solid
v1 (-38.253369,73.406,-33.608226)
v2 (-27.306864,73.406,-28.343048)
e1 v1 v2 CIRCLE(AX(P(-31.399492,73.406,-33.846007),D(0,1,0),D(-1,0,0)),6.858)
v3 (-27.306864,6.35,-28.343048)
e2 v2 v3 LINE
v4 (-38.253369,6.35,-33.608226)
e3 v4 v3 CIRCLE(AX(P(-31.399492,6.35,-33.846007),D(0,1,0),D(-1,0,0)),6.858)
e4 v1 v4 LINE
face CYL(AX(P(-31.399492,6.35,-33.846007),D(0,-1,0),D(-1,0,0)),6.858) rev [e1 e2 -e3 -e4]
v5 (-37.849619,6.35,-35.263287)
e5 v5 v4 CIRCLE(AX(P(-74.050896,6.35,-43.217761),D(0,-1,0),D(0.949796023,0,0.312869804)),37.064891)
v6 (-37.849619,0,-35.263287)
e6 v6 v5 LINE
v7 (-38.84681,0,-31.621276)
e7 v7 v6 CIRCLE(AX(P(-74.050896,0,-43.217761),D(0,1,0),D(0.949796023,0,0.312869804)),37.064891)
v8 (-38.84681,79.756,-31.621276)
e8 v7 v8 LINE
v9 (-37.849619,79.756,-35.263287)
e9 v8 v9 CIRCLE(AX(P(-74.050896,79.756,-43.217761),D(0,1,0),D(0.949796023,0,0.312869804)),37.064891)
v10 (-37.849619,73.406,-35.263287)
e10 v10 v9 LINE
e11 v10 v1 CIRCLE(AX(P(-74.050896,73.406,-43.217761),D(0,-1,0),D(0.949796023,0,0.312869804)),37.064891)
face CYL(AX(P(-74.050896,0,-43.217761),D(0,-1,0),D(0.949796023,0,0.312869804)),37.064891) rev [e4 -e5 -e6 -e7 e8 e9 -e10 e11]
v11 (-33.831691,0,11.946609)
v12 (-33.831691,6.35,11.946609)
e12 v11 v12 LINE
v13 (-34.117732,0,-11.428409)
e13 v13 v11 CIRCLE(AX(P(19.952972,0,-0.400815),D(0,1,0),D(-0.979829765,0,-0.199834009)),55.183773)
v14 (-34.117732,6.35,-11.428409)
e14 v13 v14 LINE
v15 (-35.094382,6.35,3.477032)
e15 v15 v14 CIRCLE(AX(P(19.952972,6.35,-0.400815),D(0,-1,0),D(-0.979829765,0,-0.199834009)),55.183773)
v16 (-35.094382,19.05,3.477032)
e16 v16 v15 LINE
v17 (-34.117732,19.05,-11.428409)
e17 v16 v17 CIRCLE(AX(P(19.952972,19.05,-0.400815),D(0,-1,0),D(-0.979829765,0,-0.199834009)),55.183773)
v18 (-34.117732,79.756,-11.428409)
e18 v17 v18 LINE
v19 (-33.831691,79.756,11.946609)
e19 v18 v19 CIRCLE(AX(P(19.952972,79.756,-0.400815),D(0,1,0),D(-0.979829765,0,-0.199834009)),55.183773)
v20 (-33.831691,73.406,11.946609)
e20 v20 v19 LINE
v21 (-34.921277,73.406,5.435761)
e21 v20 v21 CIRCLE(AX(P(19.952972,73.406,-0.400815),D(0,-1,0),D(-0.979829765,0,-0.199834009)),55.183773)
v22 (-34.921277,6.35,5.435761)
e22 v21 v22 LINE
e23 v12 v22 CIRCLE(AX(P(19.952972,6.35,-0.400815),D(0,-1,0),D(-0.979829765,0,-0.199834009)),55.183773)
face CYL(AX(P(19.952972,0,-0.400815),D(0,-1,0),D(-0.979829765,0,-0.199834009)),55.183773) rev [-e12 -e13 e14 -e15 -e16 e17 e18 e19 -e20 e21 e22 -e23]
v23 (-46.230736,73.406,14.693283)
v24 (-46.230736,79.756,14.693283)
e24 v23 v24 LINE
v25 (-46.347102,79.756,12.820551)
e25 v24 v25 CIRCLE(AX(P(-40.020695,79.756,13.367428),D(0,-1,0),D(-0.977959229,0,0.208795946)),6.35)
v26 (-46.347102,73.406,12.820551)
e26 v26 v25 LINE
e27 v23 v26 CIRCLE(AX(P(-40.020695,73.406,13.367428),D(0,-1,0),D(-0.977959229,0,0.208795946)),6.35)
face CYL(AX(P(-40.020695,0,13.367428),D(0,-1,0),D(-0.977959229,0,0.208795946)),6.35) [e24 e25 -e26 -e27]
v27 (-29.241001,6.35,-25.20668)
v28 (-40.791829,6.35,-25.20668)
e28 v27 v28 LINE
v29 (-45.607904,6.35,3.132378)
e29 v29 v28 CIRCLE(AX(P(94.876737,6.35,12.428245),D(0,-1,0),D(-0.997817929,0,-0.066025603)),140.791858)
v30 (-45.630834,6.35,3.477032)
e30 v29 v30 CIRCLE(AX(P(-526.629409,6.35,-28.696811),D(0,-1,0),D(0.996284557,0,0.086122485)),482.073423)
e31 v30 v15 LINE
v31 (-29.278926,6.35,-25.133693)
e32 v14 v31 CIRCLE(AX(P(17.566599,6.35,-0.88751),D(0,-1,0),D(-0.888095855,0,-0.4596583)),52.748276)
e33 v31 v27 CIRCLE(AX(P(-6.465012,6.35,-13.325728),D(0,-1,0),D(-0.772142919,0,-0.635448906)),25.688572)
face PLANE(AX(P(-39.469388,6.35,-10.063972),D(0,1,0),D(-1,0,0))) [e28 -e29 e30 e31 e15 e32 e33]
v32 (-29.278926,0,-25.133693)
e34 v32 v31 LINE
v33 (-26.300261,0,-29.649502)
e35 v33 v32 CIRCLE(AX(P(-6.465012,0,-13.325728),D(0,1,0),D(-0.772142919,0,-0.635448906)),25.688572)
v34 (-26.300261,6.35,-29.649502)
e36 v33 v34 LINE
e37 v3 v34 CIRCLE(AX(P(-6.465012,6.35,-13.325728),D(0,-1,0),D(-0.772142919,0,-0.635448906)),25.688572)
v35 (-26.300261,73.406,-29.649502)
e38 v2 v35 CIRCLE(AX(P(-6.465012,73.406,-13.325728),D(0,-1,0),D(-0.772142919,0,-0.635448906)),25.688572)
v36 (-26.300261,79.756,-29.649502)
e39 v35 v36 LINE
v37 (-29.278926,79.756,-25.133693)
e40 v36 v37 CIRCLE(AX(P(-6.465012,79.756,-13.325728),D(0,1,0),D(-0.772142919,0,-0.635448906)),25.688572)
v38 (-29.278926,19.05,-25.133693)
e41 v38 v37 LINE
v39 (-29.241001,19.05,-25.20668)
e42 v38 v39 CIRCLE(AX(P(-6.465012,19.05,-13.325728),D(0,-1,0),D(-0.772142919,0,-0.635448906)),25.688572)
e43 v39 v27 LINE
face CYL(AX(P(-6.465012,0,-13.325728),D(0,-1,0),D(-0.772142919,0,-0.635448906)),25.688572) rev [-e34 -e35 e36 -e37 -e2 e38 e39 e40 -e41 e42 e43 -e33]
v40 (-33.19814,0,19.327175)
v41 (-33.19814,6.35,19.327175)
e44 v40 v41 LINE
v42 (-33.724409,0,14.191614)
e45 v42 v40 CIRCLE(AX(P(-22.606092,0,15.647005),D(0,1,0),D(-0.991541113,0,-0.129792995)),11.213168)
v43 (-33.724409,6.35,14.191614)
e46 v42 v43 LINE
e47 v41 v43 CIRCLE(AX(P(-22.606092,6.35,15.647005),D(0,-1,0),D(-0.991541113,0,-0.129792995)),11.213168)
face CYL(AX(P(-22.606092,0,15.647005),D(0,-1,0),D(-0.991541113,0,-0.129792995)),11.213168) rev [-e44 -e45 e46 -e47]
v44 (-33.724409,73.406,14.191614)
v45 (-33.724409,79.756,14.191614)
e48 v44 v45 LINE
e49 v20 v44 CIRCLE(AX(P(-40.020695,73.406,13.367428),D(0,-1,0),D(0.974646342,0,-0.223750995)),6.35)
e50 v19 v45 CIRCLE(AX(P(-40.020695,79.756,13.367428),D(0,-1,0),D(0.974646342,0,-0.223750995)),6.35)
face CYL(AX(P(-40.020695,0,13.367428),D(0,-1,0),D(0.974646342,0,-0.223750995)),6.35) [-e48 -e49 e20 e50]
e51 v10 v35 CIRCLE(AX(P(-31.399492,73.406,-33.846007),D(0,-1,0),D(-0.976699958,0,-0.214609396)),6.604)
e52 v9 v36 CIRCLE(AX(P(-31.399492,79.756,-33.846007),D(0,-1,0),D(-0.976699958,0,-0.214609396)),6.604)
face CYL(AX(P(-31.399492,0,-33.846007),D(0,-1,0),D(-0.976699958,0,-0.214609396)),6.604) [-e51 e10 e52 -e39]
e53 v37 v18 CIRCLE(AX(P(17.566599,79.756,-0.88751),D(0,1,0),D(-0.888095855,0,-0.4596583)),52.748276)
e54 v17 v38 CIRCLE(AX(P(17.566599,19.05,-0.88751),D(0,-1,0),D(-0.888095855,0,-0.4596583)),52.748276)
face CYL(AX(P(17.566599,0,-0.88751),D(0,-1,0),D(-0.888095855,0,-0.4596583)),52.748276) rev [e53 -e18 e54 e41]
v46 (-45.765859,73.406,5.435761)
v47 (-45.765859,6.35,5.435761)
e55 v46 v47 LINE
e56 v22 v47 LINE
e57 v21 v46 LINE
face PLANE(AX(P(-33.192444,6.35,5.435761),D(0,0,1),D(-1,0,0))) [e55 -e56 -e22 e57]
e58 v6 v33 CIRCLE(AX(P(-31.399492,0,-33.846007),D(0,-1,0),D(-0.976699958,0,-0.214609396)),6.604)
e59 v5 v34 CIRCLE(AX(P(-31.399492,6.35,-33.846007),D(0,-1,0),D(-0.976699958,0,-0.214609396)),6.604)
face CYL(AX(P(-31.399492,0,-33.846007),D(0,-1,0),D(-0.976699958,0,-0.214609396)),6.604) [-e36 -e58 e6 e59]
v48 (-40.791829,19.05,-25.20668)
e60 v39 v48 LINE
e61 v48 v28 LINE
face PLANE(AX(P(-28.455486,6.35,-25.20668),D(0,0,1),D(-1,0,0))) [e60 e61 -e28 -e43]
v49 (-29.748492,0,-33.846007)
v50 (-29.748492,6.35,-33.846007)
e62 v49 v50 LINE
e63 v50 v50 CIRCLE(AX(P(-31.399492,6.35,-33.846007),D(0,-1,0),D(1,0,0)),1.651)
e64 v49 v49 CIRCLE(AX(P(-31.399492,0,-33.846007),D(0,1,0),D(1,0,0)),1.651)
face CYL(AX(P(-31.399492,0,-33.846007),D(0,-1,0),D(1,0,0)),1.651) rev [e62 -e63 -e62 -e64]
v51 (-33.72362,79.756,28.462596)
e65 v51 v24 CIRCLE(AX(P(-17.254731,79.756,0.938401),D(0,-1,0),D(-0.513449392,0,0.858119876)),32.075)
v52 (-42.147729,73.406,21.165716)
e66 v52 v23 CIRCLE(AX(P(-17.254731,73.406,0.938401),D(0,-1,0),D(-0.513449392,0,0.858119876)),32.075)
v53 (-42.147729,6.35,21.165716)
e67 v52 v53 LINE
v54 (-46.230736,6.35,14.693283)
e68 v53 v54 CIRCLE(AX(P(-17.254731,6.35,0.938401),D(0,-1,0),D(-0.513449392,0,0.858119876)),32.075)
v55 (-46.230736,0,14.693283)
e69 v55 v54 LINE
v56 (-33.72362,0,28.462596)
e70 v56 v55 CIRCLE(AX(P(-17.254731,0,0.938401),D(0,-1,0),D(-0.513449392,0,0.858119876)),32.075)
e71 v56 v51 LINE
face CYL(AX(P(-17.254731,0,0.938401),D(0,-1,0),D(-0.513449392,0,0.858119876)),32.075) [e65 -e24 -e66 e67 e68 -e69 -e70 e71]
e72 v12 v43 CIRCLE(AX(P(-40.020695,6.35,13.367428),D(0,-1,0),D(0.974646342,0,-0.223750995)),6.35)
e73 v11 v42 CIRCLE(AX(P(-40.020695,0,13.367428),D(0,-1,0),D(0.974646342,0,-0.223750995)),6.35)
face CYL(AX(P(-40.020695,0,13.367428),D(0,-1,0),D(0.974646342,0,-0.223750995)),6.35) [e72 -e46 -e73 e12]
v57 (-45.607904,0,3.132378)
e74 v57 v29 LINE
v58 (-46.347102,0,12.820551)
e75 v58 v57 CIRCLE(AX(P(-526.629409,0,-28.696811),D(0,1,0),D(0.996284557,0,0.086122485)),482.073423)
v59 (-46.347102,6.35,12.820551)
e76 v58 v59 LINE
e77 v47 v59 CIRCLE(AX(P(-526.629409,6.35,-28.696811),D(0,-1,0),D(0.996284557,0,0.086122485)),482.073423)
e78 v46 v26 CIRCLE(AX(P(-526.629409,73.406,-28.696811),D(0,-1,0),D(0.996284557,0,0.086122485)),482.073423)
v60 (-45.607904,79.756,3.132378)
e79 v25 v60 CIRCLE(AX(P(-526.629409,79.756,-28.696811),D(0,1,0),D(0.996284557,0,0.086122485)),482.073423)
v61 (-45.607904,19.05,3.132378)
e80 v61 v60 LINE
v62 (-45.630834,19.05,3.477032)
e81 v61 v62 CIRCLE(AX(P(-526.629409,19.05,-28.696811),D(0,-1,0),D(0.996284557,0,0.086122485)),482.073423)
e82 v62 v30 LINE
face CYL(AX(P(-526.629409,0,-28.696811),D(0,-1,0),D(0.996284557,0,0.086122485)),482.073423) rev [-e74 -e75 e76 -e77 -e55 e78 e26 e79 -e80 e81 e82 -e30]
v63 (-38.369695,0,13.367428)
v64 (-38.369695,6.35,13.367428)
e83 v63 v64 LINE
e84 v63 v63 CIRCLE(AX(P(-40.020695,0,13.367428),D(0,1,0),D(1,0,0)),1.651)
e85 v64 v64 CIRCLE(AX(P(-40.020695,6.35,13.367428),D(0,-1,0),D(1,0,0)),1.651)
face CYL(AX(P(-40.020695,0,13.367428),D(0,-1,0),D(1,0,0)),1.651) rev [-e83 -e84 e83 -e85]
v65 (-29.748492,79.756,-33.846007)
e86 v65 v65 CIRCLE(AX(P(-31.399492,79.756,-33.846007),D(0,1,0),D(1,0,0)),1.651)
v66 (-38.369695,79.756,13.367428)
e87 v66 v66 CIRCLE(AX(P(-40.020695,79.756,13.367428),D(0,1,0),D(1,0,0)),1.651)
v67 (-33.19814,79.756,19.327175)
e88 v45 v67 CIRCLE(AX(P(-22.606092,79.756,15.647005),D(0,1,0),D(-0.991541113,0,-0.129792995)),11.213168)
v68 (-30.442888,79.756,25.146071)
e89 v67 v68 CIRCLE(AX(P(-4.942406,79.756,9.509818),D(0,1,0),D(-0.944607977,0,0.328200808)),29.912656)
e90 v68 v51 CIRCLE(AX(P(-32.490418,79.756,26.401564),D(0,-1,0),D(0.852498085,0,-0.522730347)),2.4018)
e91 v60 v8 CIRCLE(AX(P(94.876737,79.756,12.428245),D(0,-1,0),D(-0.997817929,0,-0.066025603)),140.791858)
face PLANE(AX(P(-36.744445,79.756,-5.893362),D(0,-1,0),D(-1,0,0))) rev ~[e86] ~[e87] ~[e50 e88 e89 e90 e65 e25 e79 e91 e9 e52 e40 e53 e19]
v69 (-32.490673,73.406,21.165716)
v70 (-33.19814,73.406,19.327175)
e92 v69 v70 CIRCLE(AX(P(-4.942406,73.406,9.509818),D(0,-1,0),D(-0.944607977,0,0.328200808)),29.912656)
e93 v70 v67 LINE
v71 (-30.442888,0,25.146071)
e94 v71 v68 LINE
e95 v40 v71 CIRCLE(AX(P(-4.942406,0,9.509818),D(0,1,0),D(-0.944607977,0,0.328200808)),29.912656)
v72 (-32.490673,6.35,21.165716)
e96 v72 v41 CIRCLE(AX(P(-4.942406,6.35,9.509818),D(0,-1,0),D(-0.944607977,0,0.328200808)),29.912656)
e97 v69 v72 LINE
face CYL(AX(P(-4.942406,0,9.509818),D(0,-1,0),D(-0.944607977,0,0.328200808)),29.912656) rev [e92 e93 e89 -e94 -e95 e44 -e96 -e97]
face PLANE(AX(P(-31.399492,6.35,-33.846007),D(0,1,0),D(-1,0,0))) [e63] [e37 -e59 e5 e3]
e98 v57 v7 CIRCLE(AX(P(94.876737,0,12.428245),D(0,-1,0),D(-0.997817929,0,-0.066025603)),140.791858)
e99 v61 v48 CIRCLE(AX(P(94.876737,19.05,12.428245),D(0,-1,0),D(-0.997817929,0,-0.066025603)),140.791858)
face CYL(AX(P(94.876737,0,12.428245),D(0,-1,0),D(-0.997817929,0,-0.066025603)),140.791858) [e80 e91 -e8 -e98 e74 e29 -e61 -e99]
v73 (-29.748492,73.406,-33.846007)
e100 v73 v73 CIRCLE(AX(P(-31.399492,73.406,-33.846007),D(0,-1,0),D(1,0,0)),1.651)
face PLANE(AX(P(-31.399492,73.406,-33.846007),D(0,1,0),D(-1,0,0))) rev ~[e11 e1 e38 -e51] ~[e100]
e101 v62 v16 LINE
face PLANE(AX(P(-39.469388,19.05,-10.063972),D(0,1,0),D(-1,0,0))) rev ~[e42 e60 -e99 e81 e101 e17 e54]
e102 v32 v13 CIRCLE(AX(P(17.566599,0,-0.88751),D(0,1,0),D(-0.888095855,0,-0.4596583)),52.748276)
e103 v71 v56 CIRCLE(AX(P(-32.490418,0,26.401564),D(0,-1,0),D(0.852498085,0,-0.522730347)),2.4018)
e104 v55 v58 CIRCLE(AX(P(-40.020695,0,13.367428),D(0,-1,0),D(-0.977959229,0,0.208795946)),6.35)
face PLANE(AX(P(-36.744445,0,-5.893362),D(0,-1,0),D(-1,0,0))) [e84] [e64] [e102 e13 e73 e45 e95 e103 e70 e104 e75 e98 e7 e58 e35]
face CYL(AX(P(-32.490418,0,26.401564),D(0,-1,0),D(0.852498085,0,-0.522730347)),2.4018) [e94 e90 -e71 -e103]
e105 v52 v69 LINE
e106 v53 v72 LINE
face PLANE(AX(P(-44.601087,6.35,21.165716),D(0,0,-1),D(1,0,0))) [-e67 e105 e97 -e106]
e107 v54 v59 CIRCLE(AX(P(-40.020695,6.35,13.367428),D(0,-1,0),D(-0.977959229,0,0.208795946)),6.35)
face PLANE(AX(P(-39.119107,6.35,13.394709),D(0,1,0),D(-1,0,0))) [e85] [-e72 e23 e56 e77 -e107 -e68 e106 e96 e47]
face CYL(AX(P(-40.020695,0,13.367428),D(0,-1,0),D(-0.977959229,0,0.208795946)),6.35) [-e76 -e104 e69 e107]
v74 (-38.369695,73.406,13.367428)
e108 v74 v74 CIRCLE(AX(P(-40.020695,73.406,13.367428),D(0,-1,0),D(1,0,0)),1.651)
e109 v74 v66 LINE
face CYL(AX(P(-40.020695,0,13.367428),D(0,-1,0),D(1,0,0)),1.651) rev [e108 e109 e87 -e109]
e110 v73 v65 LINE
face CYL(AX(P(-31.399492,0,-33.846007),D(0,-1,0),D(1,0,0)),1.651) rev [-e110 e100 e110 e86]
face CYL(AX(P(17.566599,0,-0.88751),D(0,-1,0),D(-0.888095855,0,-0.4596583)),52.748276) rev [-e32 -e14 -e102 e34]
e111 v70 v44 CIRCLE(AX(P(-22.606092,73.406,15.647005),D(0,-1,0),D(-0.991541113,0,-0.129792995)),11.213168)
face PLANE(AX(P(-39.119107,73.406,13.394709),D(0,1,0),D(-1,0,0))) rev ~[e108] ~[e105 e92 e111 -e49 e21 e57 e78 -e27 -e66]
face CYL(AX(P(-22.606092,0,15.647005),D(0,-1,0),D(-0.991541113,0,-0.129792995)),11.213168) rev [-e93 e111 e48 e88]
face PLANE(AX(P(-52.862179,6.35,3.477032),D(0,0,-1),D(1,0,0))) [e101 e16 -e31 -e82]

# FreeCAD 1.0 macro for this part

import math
import FreeCAD as App
import Part
import Sketcher
Q = App.Units.Quantity


def add_polygon(sketch, points):
    """Adds a closed chain of lines whose ends are joined by coincident constraints."""
    first, n = sketch.GeometryCount, len(points)
    for a, b in zip(points, points[1:] + points[:1]):
        sketch.addGeometry(Part.LineSegment(App.Vector(*a, 0), App.Vector(*b, 0)), False)
    for i in range(n):
        sketch.addConstraint(Sketcher.Constraint("Coincident", first + i, 2, first + (i + 1) % n, 1))

doc = App.newDocument("Part")
body = doc.addObject("PartDesign::Body", "Body")

# Sketch on XZ plane
sketch1 = body.newObject("Sketcher::SketchObject", "Sketch")
sketch1.AttachmentSupport = (doc.getObject("XZ_Plane"), [""])
sketch1.MapMode = "FlatFace"
sketch1.addGeometry([
    Part.ArcOfCircle(Part.Circle(App.Vector(-526.6, -28.7, 0), App.Vector(0, 0, 1), 482.1), math.radians(3.79), math.radians(4.94)),  # 0
    Part.ArcOfCircle(Part.Circle(App.Vector(-40, 13.4, 0), App.Vector(0, 0, 1), 6.3), math.radians(167.95), math.radians(184.94)),  # 1
    Part.ArcOfCircle(Part.Circle(App.Vector(-17.3, 0.9, 0), App.Vector(0, 0, 1), 32.1), math.radians(121), math.radians(155)),  # 2
    Part.ArcOfCircle(Part.Circle(App.Vector(-32.5, 26.4, 0), App.Vector(0, 0, 1), 2.4), math.radians(-32), math.radians(121)),  # 3
    Part.ArcOfCircle(Part.Circle(App.Vector(-4.9, 9.5, 0), App.Vector(0, 0, 1), 29.9), math.radians(148.48), math.radians(160.84)),  # 4
    Part.ArcOfCircle(Part.Circle(App.Vector(-22.6, 15.6, 0), App.Vector(0, 0, 1), 11.2), math.radians(161), math.radians(187)),  # 5
    Part.ArcOfCircle(Part.Circle(App.Vector(-40, 13.4, 0), App.Vector(0, 0, 1), 6.3), math.radians(-13), math.radians(7)),  # 6
    Part.ArcOfCircle(Part.Circle(App.Vector(20, -0.4, 0), App.Vector(0, 0, 1), 55.2), math.radians(167), math.radians(192)),  # 7
    Part.ArcOfCircle(Part.Circle(App.Vector(17.6, -0.9, 0), App.Vector(0, 0, 1), 52.7), math.radians(-168.47), math.radians(-152.63)),  # 8
    Part.ArcOfCircle(Part.Circle(App.Vector(-6.5, -13.3, 0), App.Vector(0, 0, 1), 25.7), math.radians(-152.63), math.radians(-140.55)),  # 9
    Part.ArcOfCircle(Part.Circle(App.Vector(-31.4, -33.8, 0), App.Vector(0, 0, 1), 6.6), math.radians(-168), math.radians(39)),  # 10
    Part.ArcOfCircle(Part.Circle(App.Vector(-74.1, -43.2, 0), App.Vector(0, 0, 1), 37.1), math.radians(12.39), math.radians(18.23)),  # 11
    Part.ArcOfCircle(Part.Circle(App.Vector(94.9, 12.4, 0), App.Vector(0, 0, 1), 140.8), math.radians(-176.21), math.radians(-161.77)),  # 12
    Part.Circle(App.Vector(-40, 13.4, 0), App.Vector(0, 0, 1), 1.7),  # 13
    Part.Circle(App.Vector(-31.4, -33.8, 0), App.Vector(0, 0, 1), 1.7),  # 14
], False)
sketch1.addConstraint([
    Sketcher.Constraint("Tangent", 0, 2, 1, 2),
    Sketcher.Constraint("Coincident", 1, 1, 2, 2),
    Sketcher.Constraint("Tangent", 2, 1, 3, 2),
    Sketcher.Constraint("Tangent", 3, 1, 4, 1),
    Sketcher.Constraint("Tangent", 4, 2, 5, 1),
    Sketcher.Constraint("Tangent", 5, 2, 6, 2),
    Sketcher.Constraint("Tangent", 6, 1, 7, 1),
    Sketcher.Constraint("Tangent", 7, 2, 8, 1),
    Sketcher.Constraint("Tangent", 8, 2, 9, 1),
    Sketcher.Constraint("Tangent", 9, 2, 10, 2),
    Sketcher.Constraint("Tangent", 10, 1, 11, 1),
    Sketcher.Constraint("Tangent", 11, 2, 12, 2),
    Sketcher.Constraint("Tangent", 12, 1, 0, 1),
    Sketcher.Constraint("Coincident", 6, 3, 1, 3),
    Sketcher.Constraint("Coincident", 13, 3, 1, 3),
    Sketcher.Constraint("Coincident", 14, 3, 10, 3),
    Sketcher.Constraint("Equal", 1, 6),
    Sketcher.Constraint("Equal", 13, 14),
    Sketcher.Constraint("Diameter", 13, Q("0.13 in")),
    Sketcher.Constraint("Radius", 1, Q("0.25 in")),
    Sketcher.Constraint("Radius", 10, Q("0.26 in")),
    Sketcher.Constraint("Radius", 2, 32.075),
    Sketcher.Constraint("Radius", 3, 2.4018),
    Sketcher.Constraint("Radius", 5, 11.213168),
    Sketcher.Constraint("Radius", 9, 25.688572),
    Sketcher.Constraint("Radius", 11, 37.064891),
    Sketcher.Constraint("Radius", 12, 140.791858),
    Sketcher.Constraint("Radius", 0, 482.073423),
    Sketcher.Constraint("Radius", 4, 29.912656),
    Sketcher.Constraint("Radius", 7, 55.183773),
    Sketcher.Constraint("Radius", 8, 52.748276),
    Sketcher.Constraint("DistanceX", 6, 3, 7, 2, Q("0.2324001 in")),
    Sketcher.Constraint("DistanceY", -1, 1, 2, 3, 0.938401),
    Sketcher.Constraint("DistanceX", -1, 1, 8, 3, 17.566599),
    Sketcher.Constraint("DistanceX", 0, 2, -1, 1, 46.347102),
    Sketcher.Constraint("DistanceX", 10, 3, 5, 3, 8.793401),
    Sketcher.Constraint("DistanceX", 11, 3, 1, 3, 34.030201),
    Sketcher.Constraint("DistanceX", 7, 2, 2, 3, 16.863),
    Sketcher.Constraint("DistanceX", 0, 3, -1, 1, 526.629409),
    Sketcher.Constraint("DistanceY", 0, 3, -1, 1, 28.696811),
    Sketcher.Constraint("DistanceX", 5, 3, -1, 1, 22.606092),
    Sketcher.Constraint("DistanceX", 9, 3, -1, 1, 6.465012),
    Sketcher.Constraint("DistanceX", 2, 1, -1, 1, 33.72362),
])
pad1 = body.newObject("PartDesign::Pad", "Pad")
pad1.Profile = sketch1
pad1.Length = Q("3.14 in")
pad1.Reversed = True

# Sketch on XZ plane
sketch2 = body.newObject("Sketcher::SketchObject", "Sketch001")
sketch2.AttachmentSupport = (doc.getObject("XZ_Plane"), [""])
sketch2.MapMode = "FlatFace"
sketch2.AttachmentOffset = App.Placement(App.Vector(0, 0, -0.25 * 25.4), App.Rotation())
sketch2.addGeometry([
    Part.Circle(App.Vector(-31.4, -33.8, 0), App.Vector(0, 0, 1), 6.9),  # 0
    Part.LineSegment(App.Vector(-33.2, 5.4, 0), App.Vector(-47.3, 5.4, 0)),  # 1
    Part.LineSegment(App.Vector(-47.3, 5.4, 0), App.Vector(-46.6, 11.1, 0)),  # 2
    Part.ArcOfCircle(Part.Circle(App.Vector(-40, 13.4, 0), App.Vector(0, 0, 1), 7), math.radians(154), math.radians(199)),  # 3
    Part.LineSegment(App.Vector(-46.3, 16.4, 0), App.Vector(-44.6, 21.2, 0)),  # 4
    Part.LineSegment(App.Vector(-44.6, 21.2, 0), App.Vector(-30.2, 21.2, 0)),  # 5
    Part.LineSegment(App.Vector(-30.2, 21.2, 0), App.Vector(-33.1, 12.8, 0)),  # 6
    Part.ArcOfCircle(Part.Circle(App.Vector(-40, 13.4, 0), App.Vector(0, 0, 1), 7), math.radians(-19.86), math.radians(-4.27)),  # 7
    Part.LineSegment(App.Vector(-33.5, 11, 0), App.Vector(-33.2, 5.4, 0)),  # 8
], False)
sketch2.addConstraint([
    Sketcher.Constraint("Coincident", 1, 2, 2, 1),
    Sketcher.Constraint("Coincident", 2, 2, 3, 2),
    Sketcher.Constraint("Coincident", 3, 1, 4, 1),
    Sketcher.Constraint("Coincident", 4, 2, 5, 1),
    Sketcher.Constraint("Coincident", 5, 2, 6, 1),
    Sketcher.Constraint("Coincident", 6, 2, 7, 2),
    Sketcher.Constraint("Coincident", 7, 1, 8, 1),
    Sketcher.Constraint("Coincident", 8, 2, 1, 1),
    Sketcher.Constraint("Horizontal", 1),
    Sketcher.Constraint("Horizontal", 5),
    Sketcher.Constraint("Coincident", 7, 3, 3, 3),
    Sketcher.Constraint("Equal", 3, 7),
    Sketcher.Constraint("Diameter", 0, Q("0.54 in")),
    Sketcher.Constraint("Radius", 3, Q("0.275 in")),
    Sketcher.Constraint("DistanceX", 1, 2, -1, 1, 47.2859),
    Sketcher.Constraint("DistanceX", 5, 2, -1, 1, 30.1949),
    Sketcher.Constraint("DistanceY", 2, 2, 6, 2, 1.7312),
    Sketcher.Constraint("DistanceX", 7, 1, 8, 2, 0.258601),
    Sketcher.Constraint("DistanceX", 1, 2, 1, 1, 14.093455),
    Sketcher.Constraint("DistanceX", 5, 1, 5, 2, 14.406186),
    Sketcher.Constraint("DistanceY", -1, 1, 3, 3, 13.367428),
    Sketcher.Constraint("DistanceY", -1, 1, 1, 2, 5.435761),
    Sketcher.Constraint("DistanceX", 2, 2, -1, 1, 46.632941),
    Sketcher.Constraint("DistanceY", -1, 1, 2, 2, 11.116112),
    Sketcher.Constraint("DistanceY", -1, 1, 3, 1, 16.392531),
    Sketcher.Constraint("DistanceX", 2, 2, 0, 3, 15.233449),
    Sketcher.Constraint("DistanceY", 0, 3, 2, 2, 44.962119),
    Sketcher.Constraint("Distance", 4, 5.072123),
])
pocket1 = body.newObject("PartDesign::Pocket", "Pocket")
pocket1.Profile = sketch2
pocket1.Length = Q("2.64 in")

# Sketch on XZ plane
sketch3 = body.newObject("Sketcher::SketchObject", "Sketch002")
sketch3.AttachmentSupport = (doc.getObject("XZ_Plane"), [""])
sketch3.MapMode = "FlatFace"
sketch3.AttachmentOffset = App.Placement(App.Vector(0, 0, -0.25 * 25.4), App.Rotation())
add_polygon(sketch3, [(-28, -25), (-46, -25), (-53, 3), (-30, 3)])  # lines 0-3
sketch3.addConstraint([
    Sketcher.Constraint("Horizontal", 0),
    Sketcher.Constraint("Horizontal", 2),
    Sketcher.Constraint("DistanceX", 0, 2, 0, 1, 17.60759),
    Sketcher.Constraint("DistanceX", 2, 1, 2, 2, 23.131861),
    Sketcher.Constraint("Distance", 1, 29.478519),
    Sketcher.Constraint("DistanceY", 0, 2, -1, 1, 25.20668),
    Sketcher.Constraint("DistanceX", 1, 2, -1, 1, 52.862179),
    Sketcher.Constraint("DistanceY", -1, 1, 1, 2, 3.477032),
])
pocket2 = body.newObject("PartDesign::Pocket", "Pocket001")
pocket2.Profile = sketch3
pocket2.Length = Q("0.5 in")

doc.recompute()
